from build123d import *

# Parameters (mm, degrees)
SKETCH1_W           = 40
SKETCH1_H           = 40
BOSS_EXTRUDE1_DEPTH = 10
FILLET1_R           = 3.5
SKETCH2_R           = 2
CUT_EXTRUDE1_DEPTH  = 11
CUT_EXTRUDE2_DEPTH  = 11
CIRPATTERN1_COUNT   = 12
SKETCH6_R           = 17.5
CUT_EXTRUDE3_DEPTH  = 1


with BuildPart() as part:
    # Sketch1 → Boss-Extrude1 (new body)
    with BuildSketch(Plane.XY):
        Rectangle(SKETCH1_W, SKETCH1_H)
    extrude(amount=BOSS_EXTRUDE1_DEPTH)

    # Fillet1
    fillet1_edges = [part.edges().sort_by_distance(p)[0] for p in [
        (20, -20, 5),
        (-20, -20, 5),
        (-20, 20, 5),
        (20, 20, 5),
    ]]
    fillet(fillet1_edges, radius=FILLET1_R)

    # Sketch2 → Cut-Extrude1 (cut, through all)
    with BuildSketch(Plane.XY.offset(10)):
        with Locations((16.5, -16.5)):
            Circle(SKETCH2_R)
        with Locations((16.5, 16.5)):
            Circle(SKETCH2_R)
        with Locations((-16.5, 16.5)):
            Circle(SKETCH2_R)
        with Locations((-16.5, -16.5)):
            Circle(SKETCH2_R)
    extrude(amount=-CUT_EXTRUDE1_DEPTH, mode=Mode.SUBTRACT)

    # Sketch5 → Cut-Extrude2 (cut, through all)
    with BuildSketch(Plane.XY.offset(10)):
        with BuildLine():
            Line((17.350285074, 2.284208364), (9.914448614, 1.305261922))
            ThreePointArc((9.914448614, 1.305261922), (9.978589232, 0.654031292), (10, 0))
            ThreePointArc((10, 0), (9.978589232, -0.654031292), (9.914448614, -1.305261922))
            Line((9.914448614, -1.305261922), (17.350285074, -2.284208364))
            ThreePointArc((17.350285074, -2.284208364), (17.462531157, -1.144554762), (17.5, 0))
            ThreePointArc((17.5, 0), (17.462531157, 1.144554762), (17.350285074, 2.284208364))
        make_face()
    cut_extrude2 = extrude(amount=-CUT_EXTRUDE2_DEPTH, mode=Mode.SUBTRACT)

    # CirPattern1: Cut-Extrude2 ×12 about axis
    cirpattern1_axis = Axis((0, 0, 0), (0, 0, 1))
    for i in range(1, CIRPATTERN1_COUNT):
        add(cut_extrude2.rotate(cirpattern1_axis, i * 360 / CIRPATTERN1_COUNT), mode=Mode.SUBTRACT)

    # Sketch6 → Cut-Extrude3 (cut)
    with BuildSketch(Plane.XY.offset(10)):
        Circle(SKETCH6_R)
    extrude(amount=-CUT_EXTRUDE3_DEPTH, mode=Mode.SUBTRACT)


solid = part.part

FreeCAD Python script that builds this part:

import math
import FreeCAD as App
import Part
import Sketcher

V = App.Vector
Q = App.Units.Quantity


def edges_at(feature, points):
    """Names of the edges that pass closest to the given points."""
    edges = feature.Shape.Edges
    near = lambda p: min(range(len(edges)), key=lambda i: edges[i].distToShape(Part.Vertex(*p))[0])
    return sorted({f"Edge{near(p) + 1}" for p in points})

doc = App.newDocument("Part")
body = doc.addObject("PartDesign::Body", "Body")

# Sketch on XY plane
sketch1 = body.newObject("Sketcher::SketchObject", "Sketch")
sketch1.AttachmentSupport = (doc.getObject("XY_Plane"), [""])
sketch1.MapMode = "FlatFace"
sketch1.addGeometry(Part.LineSegment(V(-20, 20, 0), V(-20, -20, 0)), False)
sketch1.addGeometry(Part.LineSegment(V(-20, -20, 0), V(20, -20, 0)), False)
sketch1.addGeometry(Part.LineSegment(V(20, -20, 0), V(20, 20, 0)), False)
sketch1.addGeometry(Part.LineSegment(V(20, 20, 0), V(-20, 20, 0)), False)
sketch1.addConstraint(Sketcher.Constraint("Coincident", 0, 2, 1, 1))
sketch1.addConstraint(Sketcher.Constraint("Coincident", 1, 2, 2, 1))
sketch1.addConstraint(Sketcher.Constraint("Coincident", 2, 2, 3, 1))
sketch1.addConstraint(Sketcher.Constraint("Coincident", 3, 2, 0, 1))
sketch1.addConstraint(Sketcher.Constraint("Vertical", 0))
sketch1.addConstraint(Sketcher.Constraint("Horizontal", 1))
sketch1.addConstraint(Sketcher.Constraint("Vertical", 2))
sketch1.addConstraint(Sketcher.Constraint("Horizontal", 3))
sketch1.addConstraint(Sketcher.Constraint("Symmetric", 0, 2, 2, 2, -1, 1))
sketch1.addConstraint(Sketcher.Constraint("Equal", 3, 0))
sketch1.addConstraint(Sketcher.Constraint("DistanceX", 1, 1, 1, 2, Q("40 mm")))
pad1 = body.newObject("PartDesign::Pad", "Pad")
pad1.Profile = sketch1
pad1.Length = 10
doc.recompute()

fillet = body.newObject("PartDesign::Fillet", "Fillet")
fillet.Base = (pad1, edges_at(pad1, [
    (20, -20, 5),
    (-20, -20, 5),
    (-20, 20, 5),
    (20, 20, 5),
]))
fillet.Radius = 3.5

# Sketch on XY plane
sketch2 = body.newObject("Sketcher::SketchObject", "Sketch001")
sketch2.AttachmentSupport = (doc.getObject("XY_Plane"), [""])
sketch2.MapMode = "FlatFace"
sketch2.AttachmentOffset = App.Placement(V(0, 0, 10), App.Rotation())
sketch2.addGeometry(Part.Circle(V(16.5, -16.5, 0), V(0, 0, 1), 2), False)
sketch2.addGeometry(Part.Circle(V(16.5, 16.5, 0), V(0, 0, 1), 2), False)
sketch2.addGeometry(Part.Circle(V(-16.5, 16.5, 0), V(0, 0, 1), 2), False)
sketch2.addGeometry(Part.Circle(V(-16.5, -16.5, 0), V(0, 0, 1), 2), False)
sketch2.addConstraint(Sketcher.Constraint("Equal", 0, 1))
sketch2.addConstraint(Sketcher.Constraint("Equal", 1, 2))
sketch2.addConstraint(Sketcher.Constraint("Equal", 2, 3))
sketch2.addConstraint(Sketcher.Constraint("Symmetric", 0, 3, 2, 3, -1, 1))
sketch2.addConstraint(Sketcher.Constraint("Symmetric", 1, 3, 3, 3, -1, 1))
sketch2.addConstraint(Sketcher.Constraint("Symmetric", 1, 3, 2, 3, -2))
sketch2.addConstraint(Sketcher.Constraint("Diameter", 0, Q("4 mm")))
sketch2.addConstraint(Sketcher.Constraint("DistanceY", 0, 3, 1, 3, Q("33 mm")))
sketch2.addConstraint(Sketcher.Constraint("DistanceX", 2, 3, 1, 3, Q("33 mm")))
pocket1 = body.newObject("PartDesign::Pocket", "Pocket")
pocket1.Profile = sketch2
pocket1.Type = "ThroughAll"

# Sketch on XY plane
sketch3 = body.newObject("Sketcher::SketchObject", "Sketch002")
sketch3.AttachmentSupport = (doc.getObject("XY_Plane"), [""])
sketch3.MapMode = "FlatFace"
sketch3.AttachmentOffset = App.Placement(V(0, 0, 10), App.Rotation())
sketch3.addGeometry(Part.LineSegment(V(17.4, 2.3, 0), V(9.9, 1.3, 0)), False)
sketch3.addGeometry(Part.ArcOfCircle(Part.Circle(V(0, 0, 0), V(0, 0, 1), 10), math.radians(0), math.radians(7.5)), False)
sketch3.addGeometry(Part.ArcOfCircle(Part.Circle(V(0, 0, 0), V(0, 0, 1), 10), math.radians(-7.5), math.radians(0)), False)
sketch3.addGeometry(Part.LineSegment(V(9.9, -1.3, 0), V(17.4, -2.3, 0)), False)
sketch3.addGeometry(Part.ArcOfCircle(Part.Circle(V(0, 0, 0), V(0, 0, 1), 17.5), math.radians(-7.5), math.radians(0)), False)
sketch3.addGeometry(Part.ArcOfCircle(Part.Circle(V(0, 0, 0), V(0, 0, 1), 17.5), math.radians(0), math.radians(7.5)), False)
sketch3.addConstraint(Sketcher.Constraint("Coincident", 0, 2, 1, 2))
sketch3.addConstraint(Sketcher.Constraint("Tangent", 1, 1, 2, 2))
sketch3.addConstraint(Sketcher.Constraint("Coincident", 2, 1, 3, 1))
sketch3.addConstraint(Sketcher.Constraint("Coincident", 3, 2, 4, 1))
sketch3.addConstraint(Sketcher.Constraint("Tangent", 4, 2, 5, 1))
sketch3.addConstraint(Sketcher.Constraint("Coincident", 5, 2, 0, 1))
sketch3.addConstraint(Sketcher.Constraint("Coincident", 1, 3, -1, 1))
sketch3.addConstraint(Sketcher.Constraint("Coincident", 4, 3, -1, 1))
sketch3.addConstraint(Sketcher.Constraint("Equal", 1, 2))
sketch3.addConstraint(Sketcher.Constraint("Equal", 4, 5))
sketch3.addConstraint(Sketcher.Constraint("PointOnObject", 1, 1, -1))
sketch3.addConstraint(Sketcher.Constraint("PointOnObject", 4, 2, -1))
sketch3.addConstraint(Sketcher.Constraint("Vertical", 0, 2, 2, 1))
sketch3.addConstraint(Sketcher.Constraint("Vertical", 3, 2, 5, 2))
sketch3.addConstraint(Sketcher.Constraint("Radius", 1, Q("10 mm")))
sketch3.addConstraint(Sketcher.Constraint("Radius", 4, Q("17.5 mm")))
sketch3.addConstraint(Sketcher.Constraint("Angle", 0, Q("-172.5 deg")))
sketch3.addConstraint(Sketcher.Constraint("DistanceX", -1, 1, 0, 2, Q("9.914449 mm")))
pocket2 = body.newObject("PartDesign::Pocket", "Pocket001")
pocket2.Profile = sketch3
pocket2.Type = "ThroughAll"
doc.recompute()

polarpattern = body.newObject("PartDesign::PolarPattern", "PolarPattern")
polarpattern.Originals = [pocket2]
polarpattern.Axis = (doc.getObject("Z_Axis"), [""])
polarpattern.Angle = 360
polarpattern.Occurrences = 12
body.Tip = polarpattern

# Sketch on XY plane
sketch4 = body.newObject("Sketcher::SketchObject", "Sketch003")
sketch4.AttachmentSupport = (doc.getObject("XY_Plane"), [""])
sketch4.MapMode = "FlatFace"
sketch4.AttachmentOffset = App.Placement(V(0, 0, 10), App.Rotation())
sketch4.addGeometry(Part.Circle(V(0, 0, 0), V(0, 0, 1), 18), False)
sketch4.addConstraint(Sketcher.Constraint("Coincident", 0, 3, -1, 1))
sketch4.addConstraint(Sketcher.Constraint("Diameter", 0, Q("35 mm")))
pocket3 = body.newObject("PartDesign::Pocket", "Pocket002")
pocket3.Profile = sketch4
pocket3.Length = 1

doc.recompute()
